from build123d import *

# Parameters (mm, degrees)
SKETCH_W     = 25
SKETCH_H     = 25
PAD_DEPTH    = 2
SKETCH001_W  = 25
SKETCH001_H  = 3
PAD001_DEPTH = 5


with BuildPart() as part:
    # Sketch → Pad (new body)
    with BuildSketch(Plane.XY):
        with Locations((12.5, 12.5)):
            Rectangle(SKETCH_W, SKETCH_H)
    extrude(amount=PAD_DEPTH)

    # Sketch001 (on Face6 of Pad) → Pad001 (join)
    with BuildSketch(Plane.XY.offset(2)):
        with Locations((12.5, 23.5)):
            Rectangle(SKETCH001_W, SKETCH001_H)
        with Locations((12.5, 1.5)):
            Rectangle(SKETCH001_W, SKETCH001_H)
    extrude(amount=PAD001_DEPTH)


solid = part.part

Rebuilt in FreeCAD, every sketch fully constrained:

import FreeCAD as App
import Part
import Sketcher
from FreeCAD import Vector

doc = App.newDocument("Part")
params = doc.addObject("Spreadsheet::Sheet", "Params")
for row, (alias, value) in enumerate([
    ("sketch1_width", "25 mm"),
    ("pad1_length", "2 mm"),
    ("sketch2_width", "25 mm"),
    ("sketch2_height", "3 mm"),
    ("pad2_length", "5 mm"),
], start=1):
    params.set(f"A{row}", alias)
    params.set(f"B{row}", "=" + value)
    params.setAlias(f"B{row}", alias)

body = doc.addObject("PartDesign::Body", "Body")

# Sketch on XY plane
sketch1 = doc.addObject("Sketcher::SketchObject", "Sketch")
body.addObject(sketch1)
sketch1.AttachmentSupport = (doc.XY_Plane, [""])
sketch1.MapMode = "FlatFace"
sketch1.addGeometry(Part.LineSegment(Vector(0, 25, 0), Vector(0, 0, 0)), False)
sketch1.addGeometry(Part.LineSegment(Vector(0, 0, 0), Vector(25, 0, 0)), False)
sketch1.addGeometry(Part.LineSegment(Vector(25, 0, 0), Vector(25, 25, 0)), False)
sketch1.addGeometry(Part.LineSegment(Vector(25, 25, 0), Vector(0, 25, 0)), False)
sketch1.addConstraint(Sketcher.Constraint("Coincident", 0, 2, 1, 1))
sketch1.addConstraint(Sketcher.Constraint("Coincident", 1, 2, 2, 1))
sketch1.addConstraint(Sketcher.Constraint("Coincident", 2, 2, 3, 1))
sketch1.addConstraint(Sketcher.Constraint("Coincident", 3, 2, 0, 1))
sketch1.addConstraint(Sketcher.Constraint("Vertical", 0))
sketch1.addConstraint(Sketcher.Constraint("Horizontal", 1))
sketch1.addConstraint(Sketcher.Constraint("Vertical", 2))
sketch1.addConstraint(Sketcher.Constraint("Horizontal", 3))
sketch1.addConstraint(Sketcher.Constraint("Coincident", 0, 2, -1, 1))
sketch1.addConstraint(Sketcher.Constraint("Equal", 3, 0))
sketch1.addConstraint(Sketcher.Constraint("DistanceX", 1, 1, 1, 2, 25.0))
sketch1.setExpression("Constraints[10]", "Params.sketch1_width")
pad1 = doc.addObject("PartDesign::Pad", "Pad")
body.addObject(pad1)
pad1.Profile = sketch1
pad1.setExpression("Length", "Params.pad1_length")

# Sketch on XY plane
sketch2 = doc.addObject("Sketcher::SketchObject", "Sketch001")
body.addObject(sketch2)
sketch2.AttachmentSupport = (doc.XY_Plane, [""])
sketch2.MapMode = "FlatFace"
sketch2.AttachmentOffset = App.Placement(Vector(0, 0, 2), App.Rotation())
sketch2.addGeometry(Part.LineSegment(Vector(0, 25, 0), Vector(0, 22, 0)), False)
sketch2.addGeometry(Part.LineSegment(Vector(0, 22, 0), Vector(25, 22, 0)), False)
sketch2.addGeometry(Part.LineSegment(Vector(25, 22, 0), Vector(25, 25, 0)), False)
sketch2.addGeometry(Part.LineSegment(Vector(25, 25, 0), Vector(0, 25, 0)), False)
sketch2.addGeometry(Part.LineSegment(Vector(0, 3, 0), Vector(0, 0, 0)), False)
sketch2.addGeometry(Part.LineSegment(Vector(0, 0, 0), Vector(25, 0, 0)), False)
sketch2.addGeometry(Part.LineSegment(Vector(25, 0, 0), Vector(25, 3, 0)), False)
sketch2.addGeometry(Part.LineSegment(Vector(25, 3, 0), Vector(0, 3, 0)), False)
sketch2.addConstraint(Sketcher.Constraint("Coincident", 0, 2, 1, 1))
sketch2.addConstraint(Sketcher.Constraint("Coincident", 1, 2, 2, 1))
sketch2.addConstraint(Sketcher.Constraint("Coincident", 2, 2, 3, 1))
sketch2.addConstraint(Sketcher.Constraint("Coincident", 3, 2, 0, 1))
sketch2.addConstraint(Sketcher.Constraint("Coincident", 4, 2, 5, 1))
sketch2.addConstraint(Sketcher.Constraint("Coincident", 5, 2, 6, 1))
sketch2.addConstraint(Sketcher.Constraint("Coincident", 6, 2, 7, 1))
sketch2.addConstraint(Sketcher.Constraint("Coincident", 7, 2, 4, 1))
sketch2.addConstraint(Sketcher.Constraint("Vertical", 0))
sketch2.addConstraint(Sketcher.Constraint("Horizontal", 1))
sketch2.addConstraint(Sketcher.Constraint("Vertical", 2))
sketch2.addConstraint(Sketcher.Constraint("Horizontal", 3))
sketch2.addConstraint(Sketcher.Constraint("Vertical", 4))
sketch2.addConstraint(Sketcher.Constraint("Horizontal", 5))
sketch2.addConstraint(Sketcher.Constraint("Vertical", 6))
sketch2.addConstraint(Sketcher.Constraint("Horizontal", 7))
sketch2.addConstraint(Sketcher.Constraint("Coincident", 4, 2, -1, 1))
sketch2.addConstraint(Sketcher.Constraint("PointOnObject", 0, 2, -2))
sketch2.addConstraint(Sketcher.Constraint("Vertical", 2, 2, 5, 2))
sketch2.addConstraint(Sketcher.Constraint("Equal", 2, 4))
sketch2.addConstraint(Sketcher.Constraint("DistanceX", 1, 1, 1, 2, 25.0))
sketch2.addConstraint(Sketcher.Constraint("DistanceY", 0, 2, 0, 1, 3.0))
sketch2.addConstraint(Sketcher.Constraint("DistanceY", -1, 1, 0, 2, 22.0))
sketch2.setExpression("Constraints[20]", "Params.sketch2_width")
sketch2.setExpression("Constraints[21]", "Params.sketch2_height")
pad2 = doc.addObject("PartDesign::Pad", "Pad001")
body.addObject(pad2)
pad2.Profile = sketch2
pad2.setExpression("Length", "Params.pad2_length")

doc.recompute()
